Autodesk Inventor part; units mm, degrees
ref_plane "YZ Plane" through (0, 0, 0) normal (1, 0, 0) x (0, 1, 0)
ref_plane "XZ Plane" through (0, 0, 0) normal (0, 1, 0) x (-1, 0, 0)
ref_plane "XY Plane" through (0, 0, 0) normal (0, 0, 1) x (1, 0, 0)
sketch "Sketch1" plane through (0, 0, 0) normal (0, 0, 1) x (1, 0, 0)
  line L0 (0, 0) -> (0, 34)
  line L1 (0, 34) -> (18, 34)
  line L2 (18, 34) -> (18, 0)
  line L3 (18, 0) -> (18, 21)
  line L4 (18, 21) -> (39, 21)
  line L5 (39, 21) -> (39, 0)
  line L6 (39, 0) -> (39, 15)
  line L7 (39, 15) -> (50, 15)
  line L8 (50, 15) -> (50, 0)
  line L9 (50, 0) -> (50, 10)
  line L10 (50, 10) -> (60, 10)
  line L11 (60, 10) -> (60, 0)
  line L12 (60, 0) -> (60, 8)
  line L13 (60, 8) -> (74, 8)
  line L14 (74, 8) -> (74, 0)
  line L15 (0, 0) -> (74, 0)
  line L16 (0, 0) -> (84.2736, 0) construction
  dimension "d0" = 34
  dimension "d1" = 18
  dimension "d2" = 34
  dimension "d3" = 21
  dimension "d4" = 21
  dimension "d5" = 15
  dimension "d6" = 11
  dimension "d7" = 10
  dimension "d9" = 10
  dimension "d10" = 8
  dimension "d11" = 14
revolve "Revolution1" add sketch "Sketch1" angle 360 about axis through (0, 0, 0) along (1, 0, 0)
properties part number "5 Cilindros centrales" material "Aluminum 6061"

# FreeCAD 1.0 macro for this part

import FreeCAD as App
import Part
import Sketcher
from FreeCAD import Vector

doc = App.newDocument("Part")
params = doc.addObject("Spreadsheet::Sheet", "Params")
for row, (alias, value) in enumerate([
    ("sketch1_width", "14 mm"),
    ("sketch1_width2", "10 mm"),
    ("sketch1_width3", "11 mm"),
    ("sketch1_width4", "21 mm"),
    ("sketch1_width5", "18 mm"),
    ("revolution_angle", "360 deg"),
], start=1):
    params.set(f"A{row}", alias)
    params.set(f"B{row}", "=" + value)
    params.setAlias(f"B{row}", alias)

body = doc.addObject("PartDesign::Body", "Body")

# Sketch on XY plane
sketch1 = body.newObject("Sketcher::SketchObject", "Sketch")
sketch1.AttachmentSupport = (doc.getObject("XY_Plane"), [""])
sketch1.MapMode = "FlatFace"
sketch1.addGeometry(Part.LineSegment(Vector(0, 34, 0), Vector(0, 0, 0)), False)
sketch1.addGeometry(Part.LineSegment(Vector(0, 0, 0), Vector(74, 0, 0)), False)
sketch1.addGeometry(Part.LineSegment(Vector(74, 0, 0), Vector(74, 8, 0)), False)
sketch1.addGeometry(Part.LineSegment(Vector(74, 8, 0), Vector(60, 8, 0)), False)
sketch1.addGeometry(Part.LineSegment(Vector(60, 8, 0), Vector(60, 10, 0)), False)
sketch1.addGeometry(Part.LineSegment(Vector(60, 10, 0), Vector(50, 10, 0)), False)
sketch1.addGeometry(Part.LineSegment(Vector(50, 10, 0), Vector(50, 15, 0)), False)
sketch1.addGeometry(Part.LineSegment(Vector(50, 15, 0), Vector(39, 15, 0)), False)
sketch1.addGeometry(Part.LineSegment(Vector(39, 15, 0), Vector(39, 21, 0)), False)
sketch1.addGeometry(Part.LineSegment(Vector(39, 21, 0), Vector(18, 21, 0)), False)
sketch1.addGeometry(Part.LineSegment(Vector(18, 21, 0), Vector(18, 34, 0)), False)
sketch1.addGeometry(Part.LineSegment(Vector(18, 34, 0), Vector(0, 34, 0)), False)
sketch1.addConstraint(Sketcher.Constraint("Coincident", 0, 2, 1, 1))
sketch1.addConstraint(Sketcher.Constraint("Coincident", 1, 2, 2, 1))
sketch1.addConstraint(Sketcher.Constraint("Coincident", 2, 2, 3, 1))
sketch1.addConstraint(Sketcher.Constraint("Coincident", 3, 2, 4, 1))
sketch1.addConstraint(Sketcher.Constraint("Coincident", 4, 2, 5, 1))
sketch1.addConstraint(Sketcher.Constraint("Coincident", 5, 2, 6, 1))
sketch1.addConstraint(Sketcher.Constraint("Coincident", 6, 2, 7, 1))
sketch1.addConstraint(Sketcher.Constraint("Coincident", 7, 2, 8, 1))
sketch1.addConstraint(Sketcher.Constraint("Coincident", 8, 2, 9, 1))
sketch1.addConstraint(Sketcher.Constraint("Coincident", 9, 2, 10, 1))
sketch1.addConstraint(Sketcher.Constraint("Coincident", 10, 2, 11, 1))
sketch1.addConstraint(Sketcher.Constraint("Coincident", 11, 2, 0, 1))
sketch1.addConstraint(Sketcher.Constraint("Vertical", 0))
sketch1.addConstraint(Sketcher.Constraint("Horizontal", 1))
sketch1.addConstraint(Sketcher.Constraint("Vertical", 2))
sketch1.addConstraint(Sketcher.Constraint("Horizontal", 3))
sketch1.addConstraint(Sketcher.Constraint("Vertical", 4))
sketch1.addConstraint(Sketcher.Constraint("Horizontal", 5))
sketch1.addConstraint(Sketcher.Constraint("Vertical", 6))
sketch1.addConstraint(Sketcher.Constraint("Horizontal", 7))
sketch1.addConstraint(Sketcher.Constraint("Vertical", 8))
sketch1.addConstraint(Sketcher.Constraint("Horizontal", 9))
sketch1.addConstraint(Sketcher.Constraint("Vertical", 10))
sketch1.addConstraint(Sketcher.Constraint("Horizontal", 11))
sketch1.addConstraint(Sketcher.Constraint("Coincident", 0, 2, -1, 1))
sketch1.addConstraint(Sketcher.Constraint("DistanceX", 3, 2, 3, 1, 14.0))
sketch1.addConstraint(Sketcher.Constraint("DistanceX", 5, 2, 5, 1, 10.0))
sketch1.addConstraint(Sketcher.Constraint("DistanceX", 7, 2, 7, 1, 11.0))
sketch1.addConstraint(Sketcher.Constraint("DistanceX", 9, 2, 9, 1, 21.0))
sketch1.addConstraint(Sketcher.Constraint("DistanceX", 11, 2, 11, 1, 18.0))
sketch1.addConstraint(Sketcher.Constraint("DistanceY", 0, 2, 0, 1, 34.0))
sketch1.addConstraint(Sketcher.Constraint("DistanceY", 2, 1, 2, 2, 8.0))
sketch1.addConstraint(Sketcher.Constraint("DistanceY", -1, 1, 4, 2, 10.0))
sketch1.addConstraint(Sketcher.Constraint("DistanceY", -1, 1, 6, 2, 15.0))
sketch1.addConstraint(Sketcher.Constraint("DistanceY", -1, 1, 8, 2, 21.0))
sketch1.setExpression("Constraints[25]", "Params.sketch1_width")
sketch1.setExpression("Constraints[26]", "Params.sketch1_width2")
sketch1.setExpression("Constraints[27]", "Params.sketch1_width3")
sketch1.setExpression("Constraints[28]", "Params.sketch1_width4")
sketch1.setExpression("Constraints[29]", "Params.sketch1_width5")
revolution = body.newObject("PartDesign::Revolution", "Revolution")
revolution.Profile = sketch1
revolution.ReferenceAxis = (sketch1, ["H_Axis"])
revolution.setExpression("Angle", "Params.revolution_angle")

doc.recompute()
